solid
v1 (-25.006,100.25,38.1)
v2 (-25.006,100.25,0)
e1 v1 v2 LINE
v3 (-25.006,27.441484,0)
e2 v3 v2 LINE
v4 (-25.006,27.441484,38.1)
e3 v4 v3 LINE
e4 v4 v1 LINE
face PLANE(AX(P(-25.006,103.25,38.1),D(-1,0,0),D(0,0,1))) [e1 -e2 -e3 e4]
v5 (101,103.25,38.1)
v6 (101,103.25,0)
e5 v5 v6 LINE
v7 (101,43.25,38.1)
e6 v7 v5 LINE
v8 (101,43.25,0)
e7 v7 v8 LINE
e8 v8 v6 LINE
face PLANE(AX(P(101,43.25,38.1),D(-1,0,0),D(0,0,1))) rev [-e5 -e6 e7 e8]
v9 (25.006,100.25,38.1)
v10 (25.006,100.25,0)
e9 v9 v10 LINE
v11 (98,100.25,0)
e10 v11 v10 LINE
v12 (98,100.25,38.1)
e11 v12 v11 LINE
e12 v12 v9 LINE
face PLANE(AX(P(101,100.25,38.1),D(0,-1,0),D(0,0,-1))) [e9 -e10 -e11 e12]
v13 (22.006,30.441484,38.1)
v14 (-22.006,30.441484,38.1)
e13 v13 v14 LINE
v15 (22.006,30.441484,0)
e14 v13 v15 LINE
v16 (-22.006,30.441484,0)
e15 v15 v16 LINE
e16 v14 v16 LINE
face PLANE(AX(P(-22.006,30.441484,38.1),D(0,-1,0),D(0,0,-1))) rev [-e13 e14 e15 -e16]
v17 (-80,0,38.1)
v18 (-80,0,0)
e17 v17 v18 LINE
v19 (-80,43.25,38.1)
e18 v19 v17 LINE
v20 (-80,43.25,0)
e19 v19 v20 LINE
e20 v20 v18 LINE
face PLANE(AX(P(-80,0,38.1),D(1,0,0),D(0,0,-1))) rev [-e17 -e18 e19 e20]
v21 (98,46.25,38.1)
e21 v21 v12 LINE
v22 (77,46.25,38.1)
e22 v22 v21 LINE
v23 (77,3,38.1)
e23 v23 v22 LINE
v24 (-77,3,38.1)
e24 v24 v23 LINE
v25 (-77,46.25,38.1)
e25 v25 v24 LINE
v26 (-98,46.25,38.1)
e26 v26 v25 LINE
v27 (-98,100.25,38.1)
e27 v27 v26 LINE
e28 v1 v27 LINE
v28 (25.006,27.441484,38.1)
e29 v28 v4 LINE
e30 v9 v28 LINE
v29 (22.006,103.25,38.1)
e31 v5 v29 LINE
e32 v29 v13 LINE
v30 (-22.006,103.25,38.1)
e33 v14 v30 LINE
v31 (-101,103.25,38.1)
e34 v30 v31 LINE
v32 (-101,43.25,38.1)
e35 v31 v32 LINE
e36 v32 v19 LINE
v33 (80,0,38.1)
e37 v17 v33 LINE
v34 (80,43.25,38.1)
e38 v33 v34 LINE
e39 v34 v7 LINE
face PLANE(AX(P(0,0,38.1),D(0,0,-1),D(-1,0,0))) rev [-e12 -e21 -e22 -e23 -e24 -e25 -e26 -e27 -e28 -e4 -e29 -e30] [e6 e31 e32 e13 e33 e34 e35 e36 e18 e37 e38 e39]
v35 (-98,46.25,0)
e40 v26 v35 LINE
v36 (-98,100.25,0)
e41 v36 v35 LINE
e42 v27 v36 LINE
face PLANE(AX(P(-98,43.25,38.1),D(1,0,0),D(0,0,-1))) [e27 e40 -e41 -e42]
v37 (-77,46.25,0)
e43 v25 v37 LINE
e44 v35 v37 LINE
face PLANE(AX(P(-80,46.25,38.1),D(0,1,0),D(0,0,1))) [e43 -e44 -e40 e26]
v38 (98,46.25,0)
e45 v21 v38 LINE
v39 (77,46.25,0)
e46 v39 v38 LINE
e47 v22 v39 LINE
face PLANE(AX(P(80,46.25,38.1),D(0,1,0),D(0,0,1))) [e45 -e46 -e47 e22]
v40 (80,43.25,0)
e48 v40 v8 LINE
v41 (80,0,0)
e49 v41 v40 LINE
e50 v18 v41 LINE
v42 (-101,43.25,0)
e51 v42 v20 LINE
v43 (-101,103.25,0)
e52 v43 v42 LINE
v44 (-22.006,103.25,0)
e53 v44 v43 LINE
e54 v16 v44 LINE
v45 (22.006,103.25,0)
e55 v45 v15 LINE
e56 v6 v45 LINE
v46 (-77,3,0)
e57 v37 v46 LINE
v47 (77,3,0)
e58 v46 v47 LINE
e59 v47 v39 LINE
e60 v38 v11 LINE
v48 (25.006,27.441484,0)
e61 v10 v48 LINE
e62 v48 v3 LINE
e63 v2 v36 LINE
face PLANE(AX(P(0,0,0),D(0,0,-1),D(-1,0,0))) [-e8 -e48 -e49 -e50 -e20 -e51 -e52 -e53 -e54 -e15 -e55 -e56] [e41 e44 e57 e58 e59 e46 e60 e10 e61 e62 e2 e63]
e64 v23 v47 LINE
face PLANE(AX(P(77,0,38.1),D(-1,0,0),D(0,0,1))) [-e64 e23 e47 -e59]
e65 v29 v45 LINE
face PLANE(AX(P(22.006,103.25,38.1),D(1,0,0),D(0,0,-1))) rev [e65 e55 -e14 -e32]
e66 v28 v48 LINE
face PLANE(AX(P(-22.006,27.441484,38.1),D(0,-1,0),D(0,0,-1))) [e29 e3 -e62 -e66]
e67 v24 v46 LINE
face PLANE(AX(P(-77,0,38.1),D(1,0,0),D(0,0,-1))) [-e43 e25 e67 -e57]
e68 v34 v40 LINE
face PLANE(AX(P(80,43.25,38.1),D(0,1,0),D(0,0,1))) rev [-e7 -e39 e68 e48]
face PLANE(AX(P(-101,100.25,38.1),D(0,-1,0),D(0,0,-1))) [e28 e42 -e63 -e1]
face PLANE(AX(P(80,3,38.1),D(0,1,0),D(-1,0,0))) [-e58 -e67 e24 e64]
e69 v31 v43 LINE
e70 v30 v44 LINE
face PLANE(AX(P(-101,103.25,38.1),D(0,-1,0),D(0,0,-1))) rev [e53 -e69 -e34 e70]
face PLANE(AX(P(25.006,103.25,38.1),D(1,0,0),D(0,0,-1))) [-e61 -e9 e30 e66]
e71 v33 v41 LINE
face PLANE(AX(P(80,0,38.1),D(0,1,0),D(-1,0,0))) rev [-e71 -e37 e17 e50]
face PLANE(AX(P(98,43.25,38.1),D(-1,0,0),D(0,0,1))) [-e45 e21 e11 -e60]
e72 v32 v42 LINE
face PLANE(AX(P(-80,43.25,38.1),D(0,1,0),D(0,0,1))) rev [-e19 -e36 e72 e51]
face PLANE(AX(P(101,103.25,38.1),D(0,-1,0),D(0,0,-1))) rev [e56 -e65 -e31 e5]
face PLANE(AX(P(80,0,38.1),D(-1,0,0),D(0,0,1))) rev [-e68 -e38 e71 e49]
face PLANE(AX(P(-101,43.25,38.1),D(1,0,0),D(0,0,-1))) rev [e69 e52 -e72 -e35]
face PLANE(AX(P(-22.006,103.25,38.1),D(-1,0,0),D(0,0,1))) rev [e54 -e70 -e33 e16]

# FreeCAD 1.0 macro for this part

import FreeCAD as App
import Part
import Sketcher
Q = App.Units.Quantity


def faces_at(feature, points):
    """Names of the faces that lie closest to the given points."""
    faces = feature.Shape.Faces
    near = lambda p: min(range(len(faces)), key=lambda i: faces[i].distToShape(Part.Vertex(*p))[0])
    return sorted({f"Face{near(p) + 1}" for p in points})

doc = App.newDocument("Part")
body = doc.addObject("PartDesign::Body", "Body")

sketch1 = body.newObject("Sketcher::SketchObject", "Sketch")
sketch1.AttachmentSupport = (doc.getObject("XY_Plane"), [""])
sketch1.MapMode = "FlatFace"
sketch1.addGeometry(Part.LineSegment(App.Vector(-80, 0, 0), App.Vector(80, 0, 0)), False)
sketch1.addGeometry(Part.LineSegment(App.Vector(80, 0, 0), App.Vector(80, 43.25, 0)), False)
sketch1.addGeometry(Part.LineSegment(App.Vector(80, 43.25, 0), App.Vector(101, 43.25, 0)), False)
sketch1.addGeometry(Part.LineSegment(App.Vector(101, 43.25, 0), App.Vector(101, 103.25, 0)), False)
sketch1.addGeometry(Part.LineSegment(App.Vector(101, 103.25, 0), App.Vector(22.006, 103.25, 0)), False)
sketch1.addGeometry(Part.LineSegment(App.Vector(22.006, 103.25, 0), App.Vector(22.006, 30.441484, 0)), False)
sketch1.addGeometry(Part.LineSegment(App.Vector(22.006, 30.441484, 0), App.Vector(-22.006, 30.441484, 0)), False)
sketch1.addGeometry(Part.LineSegment(App.Vector(-22.006, 30.441484, 0), App.Vector(-22.006, 103.25, 0)), False)
sketch1.addGeometry(Part.LineSegment(App.Vector(-22.006, 103.25, 0), App.Vector(-101, 103.25, 0)), False)
sketch1.addGeometry(Part.LineSegment(App.Vector(-101, 103.25, 0), App.Vector(-101, 43.25, 0)), False)
sketch1.addGeometry(Part.LineSegment(App.Vector(-101, 43.25, 0), App.Vector(-80, 43.25, 0)), False)
sketch1.addGeometry(Part.LineSegment(App.Vector(-80, 43.25, 0), App.Vector(-80, 0, 0)), False)
sketch1.addConstraint(Sketcher.Constraint("Coincident", 0, 2, 1, 1))
sketch1.addConstraint(Sketcher.Constraint("Coincident", 1, 2, 2, 1))
sketch1.addConstraint(Sketcher.Constraint("Coincident", 2, 2, 3, 1))
sketch1.addConstraint(Sketcher.Constraint("Coincident", 3, 2, 4, 1))
sketch1.addConstraint(Sketcher.Constraint("Coincident", 4, 2, 5, 1))
sketch1.addConstraint(Sketcher.Constraint("Coincident", 5, 2, 6, 1))
sketch1.addConstraint(Sketcher.Constraint("Coincident", 6, 2, 7, 1))
sketch1.addConstraint(Sketcher.Constraint("Coincident", 7, 2, 8, 1))
sketch1.addConstraint(Sketcher.Constraint("Coincident", 8, 2, 9, 1))
sketch1.addConstraint(Sketcher.Constraint("Coincident", 9, 2, 10, 1))
sketch1.addConstraint(Sketcher.Constraint("Coincident", 10, 2, 11, 1))
sketch1.addConstraint(Sketcher.Constraint("Coincident", 11, 2, 0, 1))
sketch1.addConstraint(Sketcher.Constraint("Horizontal", 0))
sketch1.addConstraint(Sketcher.Constraint("Vertical", 1))
sketch1.addConstraint(Sketcher.Constraint("Horizontal", 2))
sketch1.addConstraint(Sketcher.Constraint("Vertical", 3))
sketch1.addConstraint(Sketcher.Constraint("Horizontal", 4))
sketch1.addConstraint(Sketcher.Constraint("Vertical", 5))
sketch1.addConstraint(Sketcher.Constraint("Horizontal", 6))
sketch1.addConstraint(Sketcher.Constraint("Vertical", 7))
sketch1.addConstraint(Sketcher.Constraint("Horizontal", 8))
sketch1.addConstraint(Sketcher.Constraint("Vertical", 9))
sketch1.addConstraint(Sketcher.Constraint("Horizontal", 10))
sketch1.addConstraint(Sketcher.Constraint("Vertical", 11))
sketch1.addConstraint(Sketcher.Constraint("Symmetric", 0, 2, 11, 2, -1, 1))
sketch1.addConstraint(Sketcher.Constraint("Symmetric", 4, 2, 7, 2, -2))
sketch1.addConstraint(Sketcher.Constraint("Symmetric", 2, 2, 9, 2, -2))
sketch1.addConstraint(Sketcher.Constraint("DistanceX", 0, 1, 0, 2, Q("160 mm")))
sketch1.addConstraint(Sketcher.Constraint("DistanceX", 2, 1, 2, 2, Q("21 mm")))
sketch1.addConstraint(Sketcher.Constraint("DistanceY", 3, 1, 3, 2, Q("60 mm")))
sketch1.addConstraint(Sketcher.Constraint("DistanceY", 1, 1, 1, 2, Q("43.25 mm")))
sketch1.addConstraint(Sketcher.Constraint("DistanceX", 4, 2, 4, 1, Q("78.994 mm")))
sketch1.addConstraint(Sketcher.Constraint("DistanceY", 5, 2, 5, 1, Q("72.808516 mm")))
pad1 = body.newObject("PartDesign::Pad", "Pad")
pad1.Profile = sketch1
pad1.Length = 38.1
doc.recompute()

thickness = body.newObject("PartDesign::Thickness", "Thickness")
thickness.Base = (pad1, faces_at(pad1, [(40.4, 30.975, 38.1), (40.4, 30.975, 0)]))
thickness.Value = 3
thickness.Reversed = True
thickness.Join = "Intersection"

doc.recompute()
